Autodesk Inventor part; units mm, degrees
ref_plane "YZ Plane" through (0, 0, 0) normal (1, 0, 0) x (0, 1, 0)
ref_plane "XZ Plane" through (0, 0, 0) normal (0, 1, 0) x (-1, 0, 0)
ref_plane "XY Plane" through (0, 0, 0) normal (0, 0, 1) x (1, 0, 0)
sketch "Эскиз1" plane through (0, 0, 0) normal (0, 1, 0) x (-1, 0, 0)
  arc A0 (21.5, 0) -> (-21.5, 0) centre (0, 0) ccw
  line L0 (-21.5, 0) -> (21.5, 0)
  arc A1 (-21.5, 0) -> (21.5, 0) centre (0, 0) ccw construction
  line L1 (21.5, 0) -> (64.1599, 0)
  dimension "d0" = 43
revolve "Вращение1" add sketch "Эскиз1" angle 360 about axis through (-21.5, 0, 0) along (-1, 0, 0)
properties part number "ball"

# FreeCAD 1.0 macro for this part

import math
import FreeCAD as App
import Part
import Sketcher
from FreeCAD import Vector

doc = App.newDocument("Part")
params = doc.addObject("Spreadsheet::Sheet", "Params")
for row, (alias, value) in enumerate([
    ("sketch1_radius", "21.5 mm"),
    ("revolution_angle", "360 deg"),
], start=1):
    params.set(f"A{row}", alias)
    params.set(f"B{row}", "=" + value)
    params.setAlias(f"B{row}", alias)

body = doc.addObject("PartDesign::Body", "Body")

# Sketch on XZ plane
sketch1 = body.newObject("Sketcher::SketchObject", "Sketch")
sketch1.AttachmentSupport = (doc.getObject("XZ_Plane"), [""])
sketch1.MapMode = "FlatFace"
sketch1.addGeometry([
    Part.LineSegment(Vector(22, 0, 0), Vector(-22, 0, 0)),
    Part.ArcOfCircle(Part.Circle(Vector(0, 0, 0), Vector(0, 0, 1), 22), math.radians(0), math.radians(180)),
], False)
sketch1.addConstraint([
    Sketcher.Constraint("Coincident", 0, 1, 1, 1),
    Sketcher.Constraint("Coincident", 1, 2, 0, 2),
    Sketcher.Constraint("Horizontal", 0),
    Sketcher.Constraint("Coincident", 1, 3, -1, 1),
    Sketcher.Constraint("PointOnObject", 0, 1, -1),
    Sketcher.Constraint("Radius", 1, 21.5),
])
sketch1.setExpression("Constraints[5]", "Params.sketch1_radius")
revolution = body.newObject("PartDesign::Revolution", "Revolution")
revolution.Profile = sketch1
revolution.ReferenceAxis = (sketch1, ["H_Axis"])
revolution.setExpression("Angle", "Params.revolution_angle")

doc.recompute()
